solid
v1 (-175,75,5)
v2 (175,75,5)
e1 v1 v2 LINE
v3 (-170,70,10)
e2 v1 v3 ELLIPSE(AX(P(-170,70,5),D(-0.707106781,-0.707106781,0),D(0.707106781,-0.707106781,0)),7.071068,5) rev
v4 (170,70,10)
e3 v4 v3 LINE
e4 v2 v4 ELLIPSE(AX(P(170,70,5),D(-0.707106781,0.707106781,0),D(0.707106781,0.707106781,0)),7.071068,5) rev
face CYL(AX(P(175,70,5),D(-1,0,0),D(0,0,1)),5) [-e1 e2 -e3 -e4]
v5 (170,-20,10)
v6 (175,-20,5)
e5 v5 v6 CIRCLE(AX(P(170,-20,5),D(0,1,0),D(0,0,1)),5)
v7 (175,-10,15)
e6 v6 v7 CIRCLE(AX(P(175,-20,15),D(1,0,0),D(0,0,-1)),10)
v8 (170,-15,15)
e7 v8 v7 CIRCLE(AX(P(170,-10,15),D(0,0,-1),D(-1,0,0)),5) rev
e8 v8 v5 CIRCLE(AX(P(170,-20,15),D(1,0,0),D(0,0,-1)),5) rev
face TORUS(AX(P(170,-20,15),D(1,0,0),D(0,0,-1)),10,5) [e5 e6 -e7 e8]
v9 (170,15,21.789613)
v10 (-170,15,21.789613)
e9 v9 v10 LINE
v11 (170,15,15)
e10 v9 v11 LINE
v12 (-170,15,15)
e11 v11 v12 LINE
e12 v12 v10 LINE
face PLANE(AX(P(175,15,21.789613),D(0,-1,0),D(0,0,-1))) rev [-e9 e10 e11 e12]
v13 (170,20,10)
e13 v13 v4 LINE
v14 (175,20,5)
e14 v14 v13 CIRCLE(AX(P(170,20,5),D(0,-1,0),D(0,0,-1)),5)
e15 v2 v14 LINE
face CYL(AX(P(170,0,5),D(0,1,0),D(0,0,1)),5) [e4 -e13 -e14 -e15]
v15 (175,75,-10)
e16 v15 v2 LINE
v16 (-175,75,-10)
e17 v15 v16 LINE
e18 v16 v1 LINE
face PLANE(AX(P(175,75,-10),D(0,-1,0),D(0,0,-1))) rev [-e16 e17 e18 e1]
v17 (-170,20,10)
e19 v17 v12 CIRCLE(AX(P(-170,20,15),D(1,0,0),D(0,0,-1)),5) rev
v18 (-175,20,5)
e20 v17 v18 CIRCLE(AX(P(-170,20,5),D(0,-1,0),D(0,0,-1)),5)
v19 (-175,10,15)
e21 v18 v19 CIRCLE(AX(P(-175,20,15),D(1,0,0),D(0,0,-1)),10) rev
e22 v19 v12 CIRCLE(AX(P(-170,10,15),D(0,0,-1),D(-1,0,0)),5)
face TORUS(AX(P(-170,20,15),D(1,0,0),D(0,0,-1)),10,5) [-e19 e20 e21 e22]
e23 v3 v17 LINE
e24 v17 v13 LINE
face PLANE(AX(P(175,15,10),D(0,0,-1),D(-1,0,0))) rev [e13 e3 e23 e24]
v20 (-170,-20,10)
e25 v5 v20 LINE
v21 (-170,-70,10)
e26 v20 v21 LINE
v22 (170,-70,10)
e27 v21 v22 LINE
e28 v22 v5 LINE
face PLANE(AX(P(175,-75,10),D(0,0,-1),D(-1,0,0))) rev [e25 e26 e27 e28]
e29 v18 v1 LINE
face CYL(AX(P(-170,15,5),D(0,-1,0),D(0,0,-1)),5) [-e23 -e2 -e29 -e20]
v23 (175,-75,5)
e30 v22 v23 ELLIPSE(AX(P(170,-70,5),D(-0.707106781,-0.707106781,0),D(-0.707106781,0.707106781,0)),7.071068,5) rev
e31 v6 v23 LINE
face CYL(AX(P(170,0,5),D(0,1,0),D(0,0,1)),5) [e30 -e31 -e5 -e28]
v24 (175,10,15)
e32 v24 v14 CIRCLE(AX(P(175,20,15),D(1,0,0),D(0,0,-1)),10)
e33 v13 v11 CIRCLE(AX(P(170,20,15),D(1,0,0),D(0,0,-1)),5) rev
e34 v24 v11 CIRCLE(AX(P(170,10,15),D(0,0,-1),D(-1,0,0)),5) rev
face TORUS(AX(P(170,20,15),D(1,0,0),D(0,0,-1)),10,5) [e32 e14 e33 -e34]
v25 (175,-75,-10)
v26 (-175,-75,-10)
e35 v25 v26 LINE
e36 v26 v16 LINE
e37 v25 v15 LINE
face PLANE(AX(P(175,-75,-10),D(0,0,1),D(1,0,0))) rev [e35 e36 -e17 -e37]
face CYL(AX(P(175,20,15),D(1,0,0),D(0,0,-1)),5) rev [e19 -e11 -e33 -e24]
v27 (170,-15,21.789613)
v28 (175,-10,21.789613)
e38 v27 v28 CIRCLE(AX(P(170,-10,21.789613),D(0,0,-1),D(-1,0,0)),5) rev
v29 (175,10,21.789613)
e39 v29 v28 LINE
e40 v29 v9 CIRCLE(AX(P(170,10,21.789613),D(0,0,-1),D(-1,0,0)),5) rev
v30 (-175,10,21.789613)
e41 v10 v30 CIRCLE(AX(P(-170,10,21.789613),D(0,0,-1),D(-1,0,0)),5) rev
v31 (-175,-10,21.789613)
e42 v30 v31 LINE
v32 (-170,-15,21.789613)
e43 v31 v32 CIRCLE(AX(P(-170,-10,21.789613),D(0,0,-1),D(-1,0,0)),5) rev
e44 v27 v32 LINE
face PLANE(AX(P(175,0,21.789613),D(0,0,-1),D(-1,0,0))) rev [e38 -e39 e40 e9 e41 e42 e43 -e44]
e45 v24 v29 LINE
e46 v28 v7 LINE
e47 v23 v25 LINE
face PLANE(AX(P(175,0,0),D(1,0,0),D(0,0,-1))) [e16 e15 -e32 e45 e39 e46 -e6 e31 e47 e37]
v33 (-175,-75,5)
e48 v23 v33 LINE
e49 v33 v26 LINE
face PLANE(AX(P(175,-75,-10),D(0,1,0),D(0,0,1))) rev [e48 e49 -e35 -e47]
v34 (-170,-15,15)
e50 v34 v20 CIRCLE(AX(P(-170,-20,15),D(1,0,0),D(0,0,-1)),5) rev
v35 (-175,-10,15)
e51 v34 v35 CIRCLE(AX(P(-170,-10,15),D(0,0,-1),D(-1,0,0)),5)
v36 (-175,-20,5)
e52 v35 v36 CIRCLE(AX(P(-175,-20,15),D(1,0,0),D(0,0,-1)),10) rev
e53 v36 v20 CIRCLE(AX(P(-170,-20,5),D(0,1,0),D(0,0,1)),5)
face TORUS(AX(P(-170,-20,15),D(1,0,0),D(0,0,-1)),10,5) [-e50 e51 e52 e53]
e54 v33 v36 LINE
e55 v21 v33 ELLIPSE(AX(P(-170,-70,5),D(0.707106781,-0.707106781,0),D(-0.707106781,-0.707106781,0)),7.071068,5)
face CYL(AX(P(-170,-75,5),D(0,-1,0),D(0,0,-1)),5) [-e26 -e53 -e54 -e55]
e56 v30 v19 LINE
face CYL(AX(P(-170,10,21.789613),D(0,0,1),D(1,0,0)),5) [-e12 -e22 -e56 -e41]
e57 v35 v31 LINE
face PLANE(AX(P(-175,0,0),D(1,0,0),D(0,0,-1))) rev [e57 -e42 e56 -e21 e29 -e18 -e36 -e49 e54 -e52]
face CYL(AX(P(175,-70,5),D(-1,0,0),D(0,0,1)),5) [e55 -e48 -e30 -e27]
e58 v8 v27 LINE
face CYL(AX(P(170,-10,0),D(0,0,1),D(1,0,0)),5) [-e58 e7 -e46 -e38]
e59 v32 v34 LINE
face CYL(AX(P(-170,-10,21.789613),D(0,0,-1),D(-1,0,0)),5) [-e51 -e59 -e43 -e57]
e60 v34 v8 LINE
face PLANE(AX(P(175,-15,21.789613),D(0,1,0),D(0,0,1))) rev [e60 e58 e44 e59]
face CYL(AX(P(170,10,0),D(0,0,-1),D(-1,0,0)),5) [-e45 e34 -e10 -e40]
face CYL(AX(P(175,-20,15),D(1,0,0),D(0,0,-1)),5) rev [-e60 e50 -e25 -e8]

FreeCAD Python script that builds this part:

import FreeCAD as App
import Part
import Sketcher
from FreeCAD import Vector


def edges_at(feature, points):
    """Names of the edges that pass closest to the given points."""
    edges = feature.Shape.Edges
    near = lambda p: min(range(len(edges)), key=lambda i: edges[i].distToShape(Part.Vertex(*p))[0])
    return sorted({f"Edge{near(p) + 1}" for p in points})

doc = App.newDocument("Part")
params = doc.addObject("Spreadsheet::Sheet", "Params")
for row, (alias, value) in enumerate([
    ("sketch1_width", "30 mm"),
    ("sketch1_width2", "60 mm"),
    ("sketch1_height", "20 mm"),
    ("pad1_length", "350 mm"),
    ("fillet_radius", "5 mm"),
], start=1):
    params.set(f"A{row}", alias)
    params.set(f"B{row}", "=" + value)
    params.setAlias(f"B{row}", alias)

body = doc.addObject("PartDesign::Body", "Body")

# Sketch on YZ plane
sketch1 = doc.addObject("Sketcher::SketchObject", "Sketch")
body.addObject(sketch1)
sketch1.AttachmentSupport = (doc.YZ_Plane, [""])
sketch1.MapMode = "FlatFace"
sketch1.addGeometry([
    Part.LineSegment(Vector(15, 22, 0), Vector(-15, 22, 0)),  # 0
    Part.LineSegment(Vector(-15, 22, 0), Vector(-15, 10, 0)),  # 1
    Part.LineSegment(Vector(-15, 10, 0), Vector(-75, 10, 0)),  # 2
    Part.LineSegment(Vector(-75, 10, 0), Vector(-75, -10, 0)),  # 3
    Part.LineSegment(Vector(-75, -10, 0), Vector(75, -10, 0)),  # 4
    Part.LineSegment(Vector(75, -10, 0), Vector(75, 10, 0)),  # 5
    Part.LineSegment(Vector(75, 10, 0), Vector(15, 10, 0)),  # 6
    Part.LineSegment(Vector(15, 10, 0), Vector(15, 22, 0)),  # 7
], False)
sketch1.addConstraint([
    Sketcher.Constraint("Coincident", 0, 2, 1, 1),
    Sketcher.Constraint("Coincident", 1, 2, 2, 1),
    Sketcher.Constraint("Coincident", 2, 2, 3, 1),
    Sketcher.Constraint("Coincident", 3, 2, 4, 1),
    Sketcher.Constraint("Coincident", 4, 2, 5, 1),
    Sketcher.Constraint("Coincident", 5, 2, 6, 1),
    Sketcher.Constraint("Coincident", 6, 2, 7, 1),
    Sketcher.Constraint("Coincident", 7, 2, 0, 1),
    Sketcher.Constraint("Horizontal", 0),
    Sketcher.Constraint("Vertical", 1),
    Sketcher.Constraint("Horizontal", 2),
    Sketcher.Constraint("Vertical", 3),
    Sketcher.Constraint("Horizontal", 4),
    Sketcher.Constraint("Vertical", 5),
    Sketcher.Constraint("Horizontal", 6),
    Sketcher.Constraint("Vertical", 7),
    Sketcher.Constraint("Symmetric", 2, 2, 4, 2, -1, 1),
    Sketcher.Constraint("Symmetric", 1, 2, 6, 2, -2),
    Sketcher.Constraint("DistanceX", 0, 2, 0, 1, 30.0),
    Sketcher.Constraint("DistanceX", 2, 2, 2, 1, 60.0),
    Sketcher.Constraint("DistanceY", 3, 2, 3, 1, 20.0),
    Sketcher.Constraint("DistanceY", 1, 2, 1, 1, 11.789613),
])
sketch1.setExpression("Constraints[18]", "Params.sketch1_width")
sketch1.setExpression("Constraints[19]", "Params.sketch1_width2")
sketch1.setExpression("Constraints[20]", "Params.sketch1_height")
pad1 = doc.addObject("PartDesign::Pad", "Pad")
body.addObject(pad1)
pad1.Profile = sketch1
pad1.setExpression("Length", "Params.pad1_length")
pad1.Midplane = True
doc.recompute()

fillet = doc.addObject("PartDesign::Fillet", "Fillet")
body.addObject(fillet)
fillet.Base = (pad1, edges_at(pad1, [
    (-175, -45, 10),
    (-175, -15, 15.895),
    (-175, 15, 15.895),
    (-175, 45, 10),
    (0, 75, 10),
    (0, -75, 10),
    (0, -15, 10),
    (0, 15, 10),
    (175, -15, 15.895),
    (175, -45, 10),
    (175, 45, 10),
    (175, 15, 15.895),
]))
fillet.setExpression("Radius", "Params.fillet_radius")

doc.recompute()
